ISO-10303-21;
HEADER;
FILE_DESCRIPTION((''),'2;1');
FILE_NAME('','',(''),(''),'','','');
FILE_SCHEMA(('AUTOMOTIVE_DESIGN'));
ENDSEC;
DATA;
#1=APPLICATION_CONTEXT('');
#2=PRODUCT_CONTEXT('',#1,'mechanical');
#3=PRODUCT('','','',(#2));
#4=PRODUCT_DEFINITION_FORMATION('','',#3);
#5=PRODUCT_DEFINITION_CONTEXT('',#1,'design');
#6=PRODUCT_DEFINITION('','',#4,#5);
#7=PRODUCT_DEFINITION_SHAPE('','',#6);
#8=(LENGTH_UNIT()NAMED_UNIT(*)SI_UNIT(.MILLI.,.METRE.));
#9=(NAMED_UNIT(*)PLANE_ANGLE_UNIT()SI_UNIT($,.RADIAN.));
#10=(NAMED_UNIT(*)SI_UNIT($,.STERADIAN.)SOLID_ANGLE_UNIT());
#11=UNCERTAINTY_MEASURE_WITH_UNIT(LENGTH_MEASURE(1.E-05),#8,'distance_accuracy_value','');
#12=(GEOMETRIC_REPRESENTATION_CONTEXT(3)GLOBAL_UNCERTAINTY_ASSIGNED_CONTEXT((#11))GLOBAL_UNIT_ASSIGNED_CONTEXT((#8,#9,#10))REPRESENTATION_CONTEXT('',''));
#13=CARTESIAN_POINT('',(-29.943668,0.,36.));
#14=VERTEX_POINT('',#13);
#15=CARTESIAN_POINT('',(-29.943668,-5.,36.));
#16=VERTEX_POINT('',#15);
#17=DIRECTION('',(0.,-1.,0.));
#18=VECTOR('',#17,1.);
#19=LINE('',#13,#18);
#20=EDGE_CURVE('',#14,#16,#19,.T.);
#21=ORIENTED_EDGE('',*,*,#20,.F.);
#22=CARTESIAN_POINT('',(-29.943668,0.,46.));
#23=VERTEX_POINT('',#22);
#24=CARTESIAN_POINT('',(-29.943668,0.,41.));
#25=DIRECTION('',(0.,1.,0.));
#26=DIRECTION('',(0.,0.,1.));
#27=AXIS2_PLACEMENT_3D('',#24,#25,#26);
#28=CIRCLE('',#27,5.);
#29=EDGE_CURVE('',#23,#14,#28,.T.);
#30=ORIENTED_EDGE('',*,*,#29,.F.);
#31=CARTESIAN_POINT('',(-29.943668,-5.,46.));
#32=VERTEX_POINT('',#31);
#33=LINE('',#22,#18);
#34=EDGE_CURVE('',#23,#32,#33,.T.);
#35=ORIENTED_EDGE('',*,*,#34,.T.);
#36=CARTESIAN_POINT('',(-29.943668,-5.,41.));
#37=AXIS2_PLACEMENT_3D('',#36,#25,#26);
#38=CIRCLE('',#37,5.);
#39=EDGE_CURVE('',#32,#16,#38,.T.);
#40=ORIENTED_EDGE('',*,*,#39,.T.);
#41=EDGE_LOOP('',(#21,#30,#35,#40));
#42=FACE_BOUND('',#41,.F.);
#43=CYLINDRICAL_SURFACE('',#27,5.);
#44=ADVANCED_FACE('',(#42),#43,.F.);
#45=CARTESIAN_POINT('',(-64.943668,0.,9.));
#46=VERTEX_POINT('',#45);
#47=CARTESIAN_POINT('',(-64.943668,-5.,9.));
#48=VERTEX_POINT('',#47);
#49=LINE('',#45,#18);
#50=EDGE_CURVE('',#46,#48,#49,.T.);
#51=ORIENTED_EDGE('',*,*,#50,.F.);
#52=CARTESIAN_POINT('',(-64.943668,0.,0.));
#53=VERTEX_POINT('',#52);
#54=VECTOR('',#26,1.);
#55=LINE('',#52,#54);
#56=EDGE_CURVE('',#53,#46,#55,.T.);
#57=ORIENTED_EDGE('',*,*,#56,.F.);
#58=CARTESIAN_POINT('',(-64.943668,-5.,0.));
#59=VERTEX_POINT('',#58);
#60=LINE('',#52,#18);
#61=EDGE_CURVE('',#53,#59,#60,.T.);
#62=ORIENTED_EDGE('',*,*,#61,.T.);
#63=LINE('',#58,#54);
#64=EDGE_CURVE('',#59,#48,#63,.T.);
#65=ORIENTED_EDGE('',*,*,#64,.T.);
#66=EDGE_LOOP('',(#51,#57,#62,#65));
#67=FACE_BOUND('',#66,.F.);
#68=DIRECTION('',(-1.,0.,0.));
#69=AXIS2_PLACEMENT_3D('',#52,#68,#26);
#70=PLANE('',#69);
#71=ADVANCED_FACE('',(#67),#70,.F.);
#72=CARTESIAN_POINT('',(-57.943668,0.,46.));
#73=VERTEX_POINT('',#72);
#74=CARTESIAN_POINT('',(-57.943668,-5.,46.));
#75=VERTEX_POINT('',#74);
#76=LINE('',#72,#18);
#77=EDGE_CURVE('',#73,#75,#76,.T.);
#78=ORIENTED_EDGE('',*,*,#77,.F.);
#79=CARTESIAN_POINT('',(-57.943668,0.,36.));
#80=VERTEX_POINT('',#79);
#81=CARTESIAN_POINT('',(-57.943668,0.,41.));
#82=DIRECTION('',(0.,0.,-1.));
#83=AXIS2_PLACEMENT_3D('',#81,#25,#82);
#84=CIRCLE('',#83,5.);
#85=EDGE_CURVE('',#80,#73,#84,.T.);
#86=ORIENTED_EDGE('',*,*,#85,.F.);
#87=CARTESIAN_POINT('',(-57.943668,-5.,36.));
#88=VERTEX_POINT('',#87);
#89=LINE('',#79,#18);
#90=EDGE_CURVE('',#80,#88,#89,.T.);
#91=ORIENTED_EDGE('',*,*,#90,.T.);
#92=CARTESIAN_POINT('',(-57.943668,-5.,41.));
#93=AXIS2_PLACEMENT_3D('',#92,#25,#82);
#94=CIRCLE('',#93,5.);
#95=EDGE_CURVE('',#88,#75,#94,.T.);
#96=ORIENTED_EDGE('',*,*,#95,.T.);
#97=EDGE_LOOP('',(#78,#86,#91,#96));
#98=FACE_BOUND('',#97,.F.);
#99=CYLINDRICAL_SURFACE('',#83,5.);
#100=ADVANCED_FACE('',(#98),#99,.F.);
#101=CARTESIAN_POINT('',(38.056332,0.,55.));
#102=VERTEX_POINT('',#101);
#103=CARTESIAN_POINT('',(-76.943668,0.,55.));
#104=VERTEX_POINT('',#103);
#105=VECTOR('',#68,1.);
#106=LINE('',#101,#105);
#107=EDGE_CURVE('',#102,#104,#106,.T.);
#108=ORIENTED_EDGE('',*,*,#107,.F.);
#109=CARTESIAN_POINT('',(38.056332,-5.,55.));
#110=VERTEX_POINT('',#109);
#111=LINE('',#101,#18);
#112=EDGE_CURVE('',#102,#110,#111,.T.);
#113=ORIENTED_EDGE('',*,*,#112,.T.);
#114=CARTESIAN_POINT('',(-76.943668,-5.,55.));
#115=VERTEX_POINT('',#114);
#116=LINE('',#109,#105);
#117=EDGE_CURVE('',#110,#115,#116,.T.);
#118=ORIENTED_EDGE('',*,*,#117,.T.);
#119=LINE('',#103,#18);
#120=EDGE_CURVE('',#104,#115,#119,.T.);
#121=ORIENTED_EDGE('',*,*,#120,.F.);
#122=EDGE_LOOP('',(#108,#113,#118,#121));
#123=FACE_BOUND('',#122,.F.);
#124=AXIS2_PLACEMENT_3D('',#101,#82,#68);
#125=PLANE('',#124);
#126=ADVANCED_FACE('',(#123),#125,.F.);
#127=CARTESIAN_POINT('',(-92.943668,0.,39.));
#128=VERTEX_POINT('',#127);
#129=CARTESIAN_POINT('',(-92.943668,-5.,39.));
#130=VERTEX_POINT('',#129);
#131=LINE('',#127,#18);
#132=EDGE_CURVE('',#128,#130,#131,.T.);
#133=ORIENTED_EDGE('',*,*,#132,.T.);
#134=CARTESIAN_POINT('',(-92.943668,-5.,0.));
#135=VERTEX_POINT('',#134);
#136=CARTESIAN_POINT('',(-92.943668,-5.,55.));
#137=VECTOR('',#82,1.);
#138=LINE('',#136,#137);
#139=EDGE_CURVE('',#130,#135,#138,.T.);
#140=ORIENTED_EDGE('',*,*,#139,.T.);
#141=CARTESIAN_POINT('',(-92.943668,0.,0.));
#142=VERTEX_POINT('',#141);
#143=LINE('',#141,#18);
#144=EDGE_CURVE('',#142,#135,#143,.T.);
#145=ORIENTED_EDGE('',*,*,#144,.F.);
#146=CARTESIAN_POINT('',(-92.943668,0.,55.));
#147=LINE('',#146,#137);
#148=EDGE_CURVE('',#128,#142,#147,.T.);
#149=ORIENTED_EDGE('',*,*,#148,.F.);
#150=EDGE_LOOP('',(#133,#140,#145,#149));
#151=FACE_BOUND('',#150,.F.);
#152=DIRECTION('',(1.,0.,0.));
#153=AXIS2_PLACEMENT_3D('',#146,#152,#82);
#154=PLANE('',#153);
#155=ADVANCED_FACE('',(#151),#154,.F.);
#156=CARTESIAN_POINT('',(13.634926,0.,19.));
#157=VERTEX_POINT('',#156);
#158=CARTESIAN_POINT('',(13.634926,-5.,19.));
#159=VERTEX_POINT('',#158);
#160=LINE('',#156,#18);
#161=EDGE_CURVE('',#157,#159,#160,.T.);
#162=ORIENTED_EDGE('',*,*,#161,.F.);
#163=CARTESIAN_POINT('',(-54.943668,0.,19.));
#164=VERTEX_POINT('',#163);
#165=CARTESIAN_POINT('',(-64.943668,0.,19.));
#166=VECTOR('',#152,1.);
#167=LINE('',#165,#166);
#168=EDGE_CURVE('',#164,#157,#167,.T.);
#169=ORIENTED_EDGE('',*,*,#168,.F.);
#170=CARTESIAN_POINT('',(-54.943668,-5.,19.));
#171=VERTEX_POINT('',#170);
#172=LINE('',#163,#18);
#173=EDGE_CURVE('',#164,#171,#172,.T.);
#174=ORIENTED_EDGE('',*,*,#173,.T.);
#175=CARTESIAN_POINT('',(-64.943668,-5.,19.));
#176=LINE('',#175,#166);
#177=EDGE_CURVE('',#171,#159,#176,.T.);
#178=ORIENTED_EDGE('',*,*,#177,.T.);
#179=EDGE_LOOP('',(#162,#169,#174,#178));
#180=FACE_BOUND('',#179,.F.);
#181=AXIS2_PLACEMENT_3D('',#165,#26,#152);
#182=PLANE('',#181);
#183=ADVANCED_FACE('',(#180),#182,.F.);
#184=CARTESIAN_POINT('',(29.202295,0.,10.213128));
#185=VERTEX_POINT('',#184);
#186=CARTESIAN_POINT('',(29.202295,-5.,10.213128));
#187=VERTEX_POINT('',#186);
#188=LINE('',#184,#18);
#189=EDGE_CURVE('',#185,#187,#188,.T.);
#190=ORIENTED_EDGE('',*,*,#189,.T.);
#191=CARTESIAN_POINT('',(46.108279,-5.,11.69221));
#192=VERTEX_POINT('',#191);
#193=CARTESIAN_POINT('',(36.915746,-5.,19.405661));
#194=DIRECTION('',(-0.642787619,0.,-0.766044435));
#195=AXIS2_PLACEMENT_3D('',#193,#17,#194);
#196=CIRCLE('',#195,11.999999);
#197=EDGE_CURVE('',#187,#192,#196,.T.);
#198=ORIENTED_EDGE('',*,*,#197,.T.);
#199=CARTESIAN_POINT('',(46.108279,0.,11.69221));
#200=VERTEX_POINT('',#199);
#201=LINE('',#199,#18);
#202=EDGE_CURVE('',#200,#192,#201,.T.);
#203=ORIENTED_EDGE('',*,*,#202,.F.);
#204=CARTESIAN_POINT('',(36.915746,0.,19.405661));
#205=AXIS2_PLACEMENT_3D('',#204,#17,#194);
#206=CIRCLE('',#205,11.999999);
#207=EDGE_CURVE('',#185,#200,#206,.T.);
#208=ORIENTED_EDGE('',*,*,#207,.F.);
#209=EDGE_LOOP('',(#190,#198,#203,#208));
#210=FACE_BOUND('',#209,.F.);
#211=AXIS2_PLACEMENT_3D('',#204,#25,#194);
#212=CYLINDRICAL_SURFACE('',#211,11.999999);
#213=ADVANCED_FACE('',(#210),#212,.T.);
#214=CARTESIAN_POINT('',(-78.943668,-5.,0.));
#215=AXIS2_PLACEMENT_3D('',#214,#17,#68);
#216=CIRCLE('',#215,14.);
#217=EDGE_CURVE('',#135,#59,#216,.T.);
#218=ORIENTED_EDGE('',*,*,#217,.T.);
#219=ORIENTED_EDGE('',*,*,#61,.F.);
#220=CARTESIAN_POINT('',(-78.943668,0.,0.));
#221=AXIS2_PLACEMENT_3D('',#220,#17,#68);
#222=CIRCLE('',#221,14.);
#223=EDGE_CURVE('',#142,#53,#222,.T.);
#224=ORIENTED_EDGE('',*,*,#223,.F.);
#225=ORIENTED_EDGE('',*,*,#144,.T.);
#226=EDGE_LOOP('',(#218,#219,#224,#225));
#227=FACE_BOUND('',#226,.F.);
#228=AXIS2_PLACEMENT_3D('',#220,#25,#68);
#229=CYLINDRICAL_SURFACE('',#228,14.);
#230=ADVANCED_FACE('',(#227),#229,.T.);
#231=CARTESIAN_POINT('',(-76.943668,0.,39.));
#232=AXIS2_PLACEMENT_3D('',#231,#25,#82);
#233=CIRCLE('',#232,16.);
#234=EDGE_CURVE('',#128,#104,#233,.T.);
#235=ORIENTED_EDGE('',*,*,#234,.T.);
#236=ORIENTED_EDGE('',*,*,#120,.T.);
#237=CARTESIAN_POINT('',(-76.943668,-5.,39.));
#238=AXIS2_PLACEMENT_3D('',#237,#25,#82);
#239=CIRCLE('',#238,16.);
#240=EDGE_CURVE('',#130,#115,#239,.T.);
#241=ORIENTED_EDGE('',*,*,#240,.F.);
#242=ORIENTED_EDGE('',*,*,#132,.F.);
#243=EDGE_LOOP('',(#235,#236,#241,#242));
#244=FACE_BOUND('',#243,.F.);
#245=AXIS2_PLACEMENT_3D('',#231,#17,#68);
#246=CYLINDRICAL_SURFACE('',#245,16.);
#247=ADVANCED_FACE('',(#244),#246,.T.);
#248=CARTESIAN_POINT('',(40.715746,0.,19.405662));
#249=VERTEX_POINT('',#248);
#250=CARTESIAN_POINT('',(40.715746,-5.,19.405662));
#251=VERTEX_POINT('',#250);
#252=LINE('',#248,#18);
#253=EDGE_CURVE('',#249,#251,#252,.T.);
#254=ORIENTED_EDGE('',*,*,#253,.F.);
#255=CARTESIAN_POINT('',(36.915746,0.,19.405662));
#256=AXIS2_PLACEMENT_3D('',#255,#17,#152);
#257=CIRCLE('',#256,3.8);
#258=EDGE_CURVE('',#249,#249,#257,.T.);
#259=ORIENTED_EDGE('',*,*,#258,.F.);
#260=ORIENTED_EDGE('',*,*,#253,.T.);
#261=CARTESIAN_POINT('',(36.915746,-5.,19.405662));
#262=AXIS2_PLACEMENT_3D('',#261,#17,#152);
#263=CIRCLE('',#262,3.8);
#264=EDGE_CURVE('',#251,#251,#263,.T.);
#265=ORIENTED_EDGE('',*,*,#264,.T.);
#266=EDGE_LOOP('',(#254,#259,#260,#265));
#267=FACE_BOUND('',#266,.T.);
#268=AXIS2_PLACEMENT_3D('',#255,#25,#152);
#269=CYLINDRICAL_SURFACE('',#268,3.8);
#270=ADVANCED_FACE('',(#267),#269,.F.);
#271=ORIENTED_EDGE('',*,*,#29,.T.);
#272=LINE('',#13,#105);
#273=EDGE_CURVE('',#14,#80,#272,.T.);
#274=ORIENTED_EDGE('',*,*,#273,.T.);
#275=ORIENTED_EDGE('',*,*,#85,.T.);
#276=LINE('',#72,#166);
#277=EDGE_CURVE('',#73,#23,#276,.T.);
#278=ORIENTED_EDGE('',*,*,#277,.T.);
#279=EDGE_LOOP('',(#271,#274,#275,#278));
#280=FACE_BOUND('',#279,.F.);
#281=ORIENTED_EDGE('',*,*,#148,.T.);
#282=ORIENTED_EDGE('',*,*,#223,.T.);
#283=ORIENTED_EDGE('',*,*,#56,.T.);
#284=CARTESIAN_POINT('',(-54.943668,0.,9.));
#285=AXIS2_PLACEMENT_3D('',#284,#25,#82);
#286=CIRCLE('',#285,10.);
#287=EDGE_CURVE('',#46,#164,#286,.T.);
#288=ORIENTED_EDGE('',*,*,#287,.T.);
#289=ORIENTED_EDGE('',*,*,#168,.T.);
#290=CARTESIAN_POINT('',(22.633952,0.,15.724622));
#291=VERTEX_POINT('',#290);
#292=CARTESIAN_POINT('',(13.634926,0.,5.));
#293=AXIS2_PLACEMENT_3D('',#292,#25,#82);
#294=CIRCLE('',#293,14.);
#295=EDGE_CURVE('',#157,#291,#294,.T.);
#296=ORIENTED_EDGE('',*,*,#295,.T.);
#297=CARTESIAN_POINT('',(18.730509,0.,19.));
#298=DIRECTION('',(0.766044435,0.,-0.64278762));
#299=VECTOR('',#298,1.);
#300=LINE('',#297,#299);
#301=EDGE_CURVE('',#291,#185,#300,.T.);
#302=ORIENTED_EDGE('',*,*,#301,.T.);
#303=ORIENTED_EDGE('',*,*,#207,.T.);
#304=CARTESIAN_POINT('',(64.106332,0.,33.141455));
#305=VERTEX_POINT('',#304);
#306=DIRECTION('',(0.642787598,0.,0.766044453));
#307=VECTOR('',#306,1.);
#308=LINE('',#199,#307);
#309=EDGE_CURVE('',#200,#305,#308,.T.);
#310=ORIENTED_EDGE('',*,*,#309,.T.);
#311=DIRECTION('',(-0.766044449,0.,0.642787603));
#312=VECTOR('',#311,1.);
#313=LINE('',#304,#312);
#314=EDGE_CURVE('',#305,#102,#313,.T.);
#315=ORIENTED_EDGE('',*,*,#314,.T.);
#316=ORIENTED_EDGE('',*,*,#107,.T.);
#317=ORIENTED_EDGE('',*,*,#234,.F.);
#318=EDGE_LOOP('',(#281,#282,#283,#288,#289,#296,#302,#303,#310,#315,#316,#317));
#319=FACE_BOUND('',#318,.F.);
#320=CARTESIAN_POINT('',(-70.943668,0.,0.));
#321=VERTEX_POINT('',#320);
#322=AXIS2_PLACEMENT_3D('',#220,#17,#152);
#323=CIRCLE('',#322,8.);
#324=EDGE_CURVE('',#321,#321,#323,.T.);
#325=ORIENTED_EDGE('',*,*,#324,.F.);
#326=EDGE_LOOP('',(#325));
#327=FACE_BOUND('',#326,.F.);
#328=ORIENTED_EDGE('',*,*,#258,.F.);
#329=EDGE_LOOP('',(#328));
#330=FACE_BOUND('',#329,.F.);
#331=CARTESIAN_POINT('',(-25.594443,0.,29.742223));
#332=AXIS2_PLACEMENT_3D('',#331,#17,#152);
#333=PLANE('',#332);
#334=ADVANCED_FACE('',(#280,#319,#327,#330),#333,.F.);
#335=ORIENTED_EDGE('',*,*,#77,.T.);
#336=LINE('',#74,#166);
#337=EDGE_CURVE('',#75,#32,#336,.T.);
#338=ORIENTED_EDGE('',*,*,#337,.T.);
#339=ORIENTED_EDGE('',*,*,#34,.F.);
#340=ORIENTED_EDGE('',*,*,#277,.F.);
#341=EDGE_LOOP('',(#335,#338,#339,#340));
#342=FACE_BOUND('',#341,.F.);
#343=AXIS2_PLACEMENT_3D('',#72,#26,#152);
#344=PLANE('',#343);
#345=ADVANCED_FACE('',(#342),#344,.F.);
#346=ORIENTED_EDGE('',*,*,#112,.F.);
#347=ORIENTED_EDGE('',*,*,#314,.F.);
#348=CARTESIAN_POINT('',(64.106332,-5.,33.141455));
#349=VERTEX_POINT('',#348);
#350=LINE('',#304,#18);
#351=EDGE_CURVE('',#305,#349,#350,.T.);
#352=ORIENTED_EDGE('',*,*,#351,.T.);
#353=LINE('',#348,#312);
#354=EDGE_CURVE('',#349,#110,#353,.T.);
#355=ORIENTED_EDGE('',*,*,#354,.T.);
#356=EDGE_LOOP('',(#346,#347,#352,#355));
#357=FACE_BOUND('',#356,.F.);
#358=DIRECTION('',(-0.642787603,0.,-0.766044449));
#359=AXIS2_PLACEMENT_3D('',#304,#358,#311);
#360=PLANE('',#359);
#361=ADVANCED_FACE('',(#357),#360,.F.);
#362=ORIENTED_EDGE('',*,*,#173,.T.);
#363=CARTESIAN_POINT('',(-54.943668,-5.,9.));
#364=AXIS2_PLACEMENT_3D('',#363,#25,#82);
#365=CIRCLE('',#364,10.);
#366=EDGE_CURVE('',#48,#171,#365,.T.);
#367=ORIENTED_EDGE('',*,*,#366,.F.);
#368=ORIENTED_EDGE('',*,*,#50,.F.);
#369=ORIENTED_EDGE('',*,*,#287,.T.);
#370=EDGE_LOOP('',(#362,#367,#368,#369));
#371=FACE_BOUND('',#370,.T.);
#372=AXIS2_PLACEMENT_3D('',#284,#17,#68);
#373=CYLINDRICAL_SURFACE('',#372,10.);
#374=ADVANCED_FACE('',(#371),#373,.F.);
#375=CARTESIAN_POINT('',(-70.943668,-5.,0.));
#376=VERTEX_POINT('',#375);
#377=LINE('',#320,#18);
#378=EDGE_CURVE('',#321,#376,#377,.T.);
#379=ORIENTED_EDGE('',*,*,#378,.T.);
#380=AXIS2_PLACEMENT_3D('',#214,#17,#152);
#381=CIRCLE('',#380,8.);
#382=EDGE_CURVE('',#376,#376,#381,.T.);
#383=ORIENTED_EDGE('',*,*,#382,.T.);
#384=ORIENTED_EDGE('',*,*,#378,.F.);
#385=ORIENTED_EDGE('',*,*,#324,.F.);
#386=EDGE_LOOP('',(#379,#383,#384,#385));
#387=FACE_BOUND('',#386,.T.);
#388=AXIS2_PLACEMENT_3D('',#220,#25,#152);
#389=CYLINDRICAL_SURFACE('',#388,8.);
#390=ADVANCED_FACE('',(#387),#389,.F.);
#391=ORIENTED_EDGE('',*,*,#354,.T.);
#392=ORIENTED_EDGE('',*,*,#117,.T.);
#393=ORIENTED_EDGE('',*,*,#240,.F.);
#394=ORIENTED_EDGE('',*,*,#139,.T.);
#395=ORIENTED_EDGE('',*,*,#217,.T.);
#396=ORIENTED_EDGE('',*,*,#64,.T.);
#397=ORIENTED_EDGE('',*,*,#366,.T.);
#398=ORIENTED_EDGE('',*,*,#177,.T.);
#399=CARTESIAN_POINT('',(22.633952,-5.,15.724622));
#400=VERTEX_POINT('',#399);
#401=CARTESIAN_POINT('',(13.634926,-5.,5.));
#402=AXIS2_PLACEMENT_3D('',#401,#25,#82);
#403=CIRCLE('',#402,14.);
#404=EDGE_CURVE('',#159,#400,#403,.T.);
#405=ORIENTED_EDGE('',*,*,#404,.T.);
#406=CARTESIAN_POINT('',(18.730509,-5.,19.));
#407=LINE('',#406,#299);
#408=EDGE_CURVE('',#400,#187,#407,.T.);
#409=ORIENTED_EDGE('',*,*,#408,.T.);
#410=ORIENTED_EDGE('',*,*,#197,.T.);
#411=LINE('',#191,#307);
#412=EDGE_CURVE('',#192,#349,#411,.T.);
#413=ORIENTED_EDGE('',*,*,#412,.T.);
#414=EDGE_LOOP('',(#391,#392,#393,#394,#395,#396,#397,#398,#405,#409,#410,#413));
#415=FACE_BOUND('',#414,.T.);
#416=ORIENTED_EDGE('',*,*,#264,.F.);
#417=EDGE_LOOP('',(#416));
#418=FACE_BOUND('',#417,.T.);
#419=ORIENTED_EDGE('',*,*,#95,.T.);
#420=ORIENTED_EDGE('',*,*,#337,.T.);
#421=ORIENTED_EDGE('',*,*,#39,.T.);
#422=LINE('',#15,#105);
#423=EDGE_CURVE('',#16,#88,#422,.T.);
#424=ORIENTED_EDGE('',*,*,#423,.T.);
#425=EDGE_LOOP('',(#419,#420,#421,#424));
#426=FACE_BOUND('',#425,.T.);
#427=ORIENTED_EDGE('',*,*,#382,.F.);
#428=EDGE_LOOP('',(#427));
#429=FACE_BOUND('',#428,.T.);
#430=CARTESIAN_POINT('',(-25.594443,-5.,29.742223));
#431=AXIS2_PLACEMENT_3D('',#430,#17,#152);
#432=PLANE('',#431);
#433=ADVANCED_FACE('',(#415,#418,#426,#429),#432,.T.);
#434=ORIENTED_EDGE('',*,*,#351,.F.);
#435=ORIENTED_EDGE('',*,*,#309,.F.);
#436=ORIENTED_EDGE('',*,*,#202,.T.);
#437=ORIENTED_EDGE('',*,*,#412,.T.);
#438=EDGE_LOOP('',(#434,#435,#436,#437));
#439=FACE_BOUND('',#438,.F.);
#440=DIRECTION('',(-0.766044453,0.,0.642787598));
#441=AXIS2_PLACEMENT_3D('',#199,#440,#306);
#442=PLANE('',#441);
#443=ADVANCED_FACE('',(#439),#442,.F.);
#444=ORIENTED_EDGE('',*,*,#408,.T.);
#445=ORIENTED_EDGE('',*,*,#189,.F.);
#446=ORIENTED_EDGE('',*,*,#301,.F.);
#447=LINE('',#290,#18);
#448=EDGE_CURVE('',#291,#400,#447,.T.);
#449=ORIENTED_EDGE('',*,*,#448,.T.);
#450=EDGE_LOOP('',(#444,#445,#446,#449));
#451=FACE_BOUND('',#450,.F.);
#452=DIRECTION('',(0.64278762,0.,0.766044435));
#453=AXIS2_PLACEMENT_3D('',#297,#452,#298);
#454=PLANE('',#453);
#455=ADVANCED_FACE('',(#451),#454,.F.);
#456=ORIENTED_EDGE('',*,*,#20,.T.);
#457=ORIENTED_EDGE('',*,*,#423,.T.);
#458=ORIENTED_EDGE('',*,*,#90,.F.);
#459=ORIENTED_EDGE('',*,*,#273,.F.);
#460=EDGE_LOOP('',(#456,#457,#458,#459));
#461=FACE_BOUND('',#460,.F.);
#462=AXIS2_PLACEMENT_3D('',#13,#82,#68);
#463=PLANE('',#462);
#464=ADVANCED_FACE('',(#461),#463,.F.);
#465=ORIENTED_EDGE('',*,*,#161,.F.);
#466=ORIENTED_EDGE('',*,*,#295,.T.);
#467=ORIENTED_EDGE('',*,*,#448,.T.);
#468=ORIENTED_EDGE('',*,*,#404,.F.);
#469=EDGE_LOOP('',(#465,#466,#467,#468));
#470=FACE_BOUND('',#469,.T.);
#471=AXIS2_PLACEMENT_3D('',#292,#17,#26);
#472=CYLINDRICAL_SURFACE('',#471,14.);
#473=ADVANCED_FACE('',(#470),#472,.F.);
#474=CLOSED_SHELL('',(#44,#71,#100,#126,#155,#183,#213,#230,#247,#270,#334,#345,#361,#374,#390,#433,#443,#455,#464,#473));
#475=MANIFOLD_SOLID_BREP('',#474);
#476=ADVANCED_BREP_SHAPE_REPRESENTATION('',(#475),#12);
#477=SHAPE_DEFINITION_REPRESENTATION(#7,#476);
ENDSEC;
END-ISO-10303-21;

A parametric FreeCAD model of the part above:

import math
import FreeCAD as App
import Part
import Sketcher
from FreeCAD import Vector
Q = App.Units.Quantity


def edges_at(feature, points):
    """Names of the edges that pass closest to the given points."""
    edges = feature.Shape.Edges
    near = lambda p: min(range(len(edges)), key=lambda i: edges[i].distToShape(Part.Vertex(*p))[0])
    return sorted({f"Edge{near(p) + 1}" for p in points})

doc = App.newDocument("Part")
body = doc.addObject("PartDesign::Body", "Body")

# Sketch on XZ plane
sketch1 = body.newObject("Sketcher::SketchObject", "Sketch")
sketch1.AttachmentSupport = (doc.getObject("XZ_Plane"), [""])
sketch1.MapMode = "FlatFace"
sketch1.addGeometry([
    Part.LineSegment(Vector(38.056332, 55, 0), Vector(-92.943668, 55, 0)),  # 0
    Part.LineSegment(Vector(-92.943668, 55, 0), Vector(-92.943668, 0, 0)),  # 1
    Part.ArcOfCircle(Part.Circle(Vector(-78.943668, 0, 0), Vector(0, 0, 1), 14), math.radians(180), math.radians(360)),  # 2
    Part.LineSegment(Vector(-64.943668, 0, 0), Vector(-64.943668, 19, 0)),  # 3
    Part.LineSegment(Vector(-64.943668, 19, 0), Vector(18.730509, 19, 0)),  # 4
    Part.LineSegment(Vector(18.730509, 19, 0), Vector(29.202295, 10.213128, 0)),  # 5
    Part.ArcOfCircle(Part.Circle(Vector(36.915746, 19.405661, 0), Vector(0, 0, 1), 11.999999), math.radians(-130.000001), math.radians(-39.999999)),  # 6
    Part.LineSegment(Vector(46.108279, 11.69221, 0), Vector(64.106332, 33.141455, 0)),  # 7
    Part.LineSegment(Vector(64.106332, 33.141455, 0), Vector(38.056332, 55, 0)),  # 8
    Part.Circle(Vector(-78.943668, 0, 0), Vector(0, 0, 1), 8),  # 9
    Part.LineSegment(Vector(-29.943668, 36, 0), Vector(-57.943668, 36, 0)),  # 10
    Part.ArcOfCircle(Part.Circle(Vector(-57.943668, 41, 0), Vector(0, 0, 1), 5), math.radians(90), math.radians(270)),  # 11
    Part.LineSegment(Vector(-57.943668, 46, 0), Vector(-29.943668, 46, 0)),  # 12
    Part.ArcOfCircle(Part.Circle(Vector(-29.943668, 41, 0), Vector(0, 0, 1), 5), math.radians(-90), math.radians(90)),  # 13
    Part.Circle(Vector(36.915746, 19.405662, 0), Vector(0, 0, 1), 3.8),  # 14
], False)
sketch1.addConstraint([
    Sketcher.Constraint("Coincident", 0, 2, 1, 1),
    Sketcher.Constraint("Tangent", 1, 2, 2, 1),
    Sketcher.Constraint("Tangent", 2, 2, 3, 1),
    Sketcher.Constraint("Coincident", 3, 2, 4, 1),
    Sketcher.Constraint("Coincident", 4, 2, 5, 1),
    Sketcher.Constraint("Tangent", 5, 2, 6, 1),
    Sketcher.Constraint("Tangent", 6, 2, 7, 1),
    Sketcher.Constraint("Coincident", 7, 2, 8, 1),
    Sketcher.Constraint("Coincident", 8, 2, 0, 1),
    Sketcher.Constraint("Tangent", 10, 2, 11, 2),
    Sketcher.Constraint("Tangent", 11, 1, 12, 1),
    Sketcher.Constraint("Tangent", 12, 2, 13, 2),
    Sketcher.Constraint("Tangent", 13, 1, 10, 1),
    Sketcher.Constraint("Horizontal", 0),
    Sketcher.Constraint("Vertical", 1),
    Sketcher.Constraint("Vertical", 3),
    Sketcher.Constraint("Horizontal", 4),
    Sketcher.Constraint("Horizontal", 10),
    Sketcher.Constraint("Horizontal", 12),
    Sketcher.Constraint("Coincident", 9, 3, 2, 3),
    Sketcher.Constraint("Coincident", 14, 3, 6, 3),
    Sketcher.Constraint("PointOnObject", 2, 3, -1),
    Sketcher.Constraint("Perpendicular", 5, 7),
    Sketcher.Constraint("Perpendicular", 7, 8),
    Sketcher.Constraint("Diameter", 9, 16.0),
    Sketcher.Constraint("Radius", 2, 14.0),
    Sketcher.Constraint("Radius", 6, 11.999999),
    Sketcher.Constraint("Radius", 11, 5.0),
    Sketcher.Constraint("Diameter", 14, 7.6),
    Sketcher.Constraint("DistanceX", 0, 2, 0, 1, 131.0),
    Sketcher.Constraint("DistanceX", 10, 2, 10, 1, 28.0),
    Sketcher.Constraint("DistanceY", 1, 2, 1, 1, 55.0),
    Sketcher.Constraint("DistanceY", 3, 1, 3, 2, 19.0),
    Sketcher.Constraint("Angle", 5, Q("-40.000001 deg")),
    Sketcher.Constraint("Distance", 7, 28.0),
    Sketcher.Constraint("DistanceY", -1, 1, 11, 3, 41.0),
    Sketcher.Constraint("DistanceX", 2, 3, 11, 3, 21.0),
    Sketcher.Constraint("DistanceX", 8, 2, 7, 2, 26.05),
    Sketcher.Constraint("DistanceX", 2, 3, -1, 1, 78.943668),
])
pad1 = body.newObject("PartDesign::Pad", "Pad")
pad1.Profile = sketch1
pad1.Length = 5
doc.recompute()

fillet = body.newObject("PartDesign::Fillet", "Fillet")
fillet.Base = (pad1, edges_at(pad1, [(-64.944, -2.5, 19)]))
fillet.Radius = 10
doc.recompute()

fillet2 = body.newObject("PartDesign::Fillet", "Fillet001")
fillet2.Base = (fillet, edges_at(fillet, [(18.731, -2.5, 19)]))
fillet2.Radius = 14
doc.recompute()

fillet3 = body.newObject("PartDesign::Fillet", "Fillet002")
fillet3.Base = (fillet2, edges_at(fillet2, [(-92.944, -2.5, 55)]))
fillet3.Radius = 16

doc.recompute()
